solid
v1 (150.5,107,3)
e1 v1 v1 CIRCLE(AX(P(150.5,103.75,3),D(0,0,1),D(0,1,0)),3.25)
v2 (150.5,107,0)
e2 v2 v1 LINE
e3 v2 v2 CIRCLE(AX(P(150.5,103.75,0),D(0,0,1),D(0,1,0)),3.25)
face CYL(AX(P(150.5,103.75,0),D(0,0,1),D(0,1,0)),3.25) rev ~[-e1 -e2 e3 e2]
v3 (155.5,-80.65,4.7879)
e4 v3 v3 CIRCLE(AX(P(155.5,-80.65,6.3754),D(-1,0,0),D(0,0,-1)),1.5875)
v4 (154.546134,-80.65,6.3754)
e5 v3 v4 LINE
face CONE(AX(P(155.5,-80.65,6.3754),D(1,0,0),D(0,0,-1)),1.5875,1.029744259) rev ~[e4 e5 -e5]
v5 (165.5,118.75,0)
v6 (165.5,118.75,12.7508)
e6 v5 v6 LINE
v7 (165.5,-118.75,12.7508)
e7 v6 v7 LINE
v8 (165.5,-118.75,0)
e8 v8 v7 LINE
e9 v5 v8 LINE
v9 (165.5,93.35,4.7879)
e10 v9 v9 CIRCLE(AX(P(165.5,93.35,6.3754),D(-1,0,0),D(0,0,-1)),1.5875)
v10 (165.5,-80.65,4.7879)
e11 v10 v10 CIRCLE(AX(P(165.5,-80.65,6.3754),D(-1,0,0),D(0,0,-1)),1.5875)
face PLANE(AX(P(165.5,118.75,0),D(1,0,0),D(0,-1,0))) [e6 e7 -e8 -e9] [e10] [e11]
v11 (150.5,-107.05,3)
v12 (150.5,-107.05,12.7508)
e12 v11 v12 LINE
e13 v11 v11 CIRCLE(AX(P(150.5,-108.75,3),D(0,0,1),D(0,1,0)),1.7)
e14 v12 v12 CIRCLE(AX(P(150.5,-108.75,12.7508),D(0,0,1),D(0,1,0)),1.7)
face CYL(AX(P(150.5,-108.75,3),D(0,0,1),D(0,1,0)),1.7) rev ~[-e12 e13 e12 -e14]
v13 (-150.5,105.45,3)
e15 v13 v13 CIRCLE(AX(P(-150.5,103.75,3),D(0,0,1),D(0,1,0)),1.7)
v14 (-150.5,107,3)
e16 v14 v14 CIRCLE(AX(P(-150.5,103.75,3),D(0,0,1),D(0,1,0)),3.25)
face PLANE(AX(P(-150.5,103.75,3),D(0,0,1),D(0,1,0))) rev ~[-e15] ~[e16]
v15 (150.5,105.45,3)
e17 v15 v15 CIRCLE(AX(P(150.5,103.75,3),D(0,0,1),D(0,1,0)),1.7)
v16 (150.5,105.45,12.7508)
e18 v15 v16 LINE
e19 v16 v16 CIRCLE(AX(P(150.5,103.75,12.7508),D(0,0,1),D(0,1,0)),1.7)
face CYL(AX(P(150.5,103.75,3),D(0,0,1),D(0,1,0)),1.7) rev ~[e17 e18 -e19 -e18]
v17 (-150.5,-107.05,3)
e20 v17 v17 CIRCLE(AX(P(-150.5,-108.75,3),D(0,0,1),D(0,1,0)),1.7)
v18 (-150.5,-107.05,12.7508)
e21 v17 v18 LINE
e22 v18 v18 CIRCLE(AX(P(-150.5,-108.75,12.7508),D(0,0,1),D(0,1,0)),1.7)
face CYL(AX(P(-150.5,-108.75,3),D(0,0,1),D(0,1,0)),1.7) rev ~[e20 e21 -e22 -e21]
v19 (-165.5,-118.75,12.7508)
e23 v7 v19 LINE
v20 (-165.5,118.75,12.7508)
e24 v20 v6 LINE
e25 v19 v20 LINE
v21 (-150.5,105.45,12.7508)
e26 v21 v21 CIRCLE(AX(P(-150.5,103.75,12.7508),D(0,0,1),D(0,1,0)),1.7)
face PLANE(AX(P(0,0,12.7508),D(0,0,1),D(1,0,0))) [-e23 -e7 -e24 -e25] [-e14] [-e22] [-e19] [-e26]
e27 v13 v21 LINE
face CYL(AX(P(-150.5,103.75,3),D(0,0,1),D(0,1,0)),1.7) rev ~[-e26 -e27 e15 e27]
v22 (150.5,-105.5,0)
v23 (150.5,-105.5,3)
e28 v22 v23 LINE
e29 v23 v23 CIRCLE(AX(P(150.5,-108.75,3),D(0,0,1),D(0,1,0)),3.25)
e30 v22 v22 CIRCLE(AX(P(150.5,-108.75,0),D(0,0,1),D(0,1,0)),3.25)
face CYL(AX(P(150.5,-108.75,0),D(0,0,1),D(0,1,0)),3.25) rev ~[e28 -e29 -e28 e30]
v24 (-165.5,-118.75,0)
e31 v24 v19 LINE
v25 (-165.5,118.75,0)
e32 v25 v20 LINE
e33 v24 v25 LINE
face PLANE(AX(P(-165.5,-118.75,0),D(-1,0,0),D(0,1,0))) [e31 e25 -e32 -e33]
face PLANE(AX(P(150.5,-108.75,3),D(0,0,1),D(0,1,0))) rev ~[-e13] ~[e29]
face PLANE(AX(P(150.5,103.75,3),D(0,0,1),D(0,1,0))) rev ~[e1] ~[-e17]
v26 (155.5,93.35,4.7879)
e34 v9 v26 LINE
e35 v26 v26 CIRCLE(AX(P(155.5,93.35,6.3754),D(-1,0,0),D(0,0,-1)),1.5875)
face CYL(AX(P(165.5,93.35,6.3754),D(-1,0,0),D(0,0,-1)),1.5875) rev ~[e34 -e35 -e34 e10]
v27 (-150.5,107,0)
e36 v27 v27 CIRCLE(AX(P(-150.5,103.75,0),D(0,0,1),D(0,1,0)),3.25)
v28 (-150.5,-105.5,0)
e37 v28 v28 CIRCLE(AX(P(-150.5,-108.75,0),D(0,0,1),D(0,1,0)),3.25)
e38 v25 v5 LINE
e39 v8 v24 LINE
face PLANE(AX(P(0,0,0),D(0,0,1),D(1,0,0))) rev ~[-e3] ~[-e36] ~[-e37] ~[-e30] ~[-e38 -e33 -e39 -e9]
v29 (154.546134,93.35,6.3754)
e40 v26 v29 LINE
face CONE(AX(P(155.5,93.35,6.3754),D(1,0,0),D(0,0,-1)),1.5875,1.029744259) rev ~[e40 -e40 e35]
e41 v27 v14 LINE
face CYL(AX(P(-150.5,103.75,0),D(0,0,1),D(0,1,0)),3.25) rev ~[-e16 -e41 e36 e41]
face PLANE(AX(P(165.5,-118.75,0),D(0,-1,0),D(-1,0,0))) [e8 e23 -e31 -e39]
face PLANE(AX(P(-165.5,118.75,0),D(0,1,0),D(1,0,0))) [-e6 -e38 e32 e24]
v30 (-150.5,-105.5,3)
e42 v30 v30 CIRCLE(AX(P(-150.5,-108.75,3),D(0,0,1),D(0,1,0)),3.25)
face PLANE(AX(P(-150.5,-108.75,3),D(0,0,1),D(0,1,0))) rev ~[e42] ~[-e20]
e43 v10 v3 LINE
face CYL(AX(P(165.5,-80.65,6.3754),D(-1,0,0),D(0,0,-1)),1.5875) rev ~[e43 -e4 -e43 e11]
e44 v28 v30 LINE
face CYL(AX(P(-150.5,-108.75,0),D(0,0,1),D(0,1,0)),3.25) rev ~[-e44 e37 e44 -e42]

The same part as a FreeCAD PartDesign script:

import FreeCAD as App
import Part
import Sketcher
from FreeCAD import Vector

doc = App.newDocument("Part")
body = doc.addObject("PartDesign::Body", "Body")

sketch1 = body.newObject("Sketcher::SketchObject", "Sketch")
sketch1.AttachmentSupport = (doc.getObject("XY_Plane"), [""])
sketch1.MapMode = "FlatFace"
sketch1.addGeometry([
    Part.LineSegment(Vector(166, 119, 0), Vector(-166, 119, 0)),
    Part.LineSegment(Vector(-166, 119, 0), Vector(-166, -119, 0)),
    Part.LineSegment(Vector(-166, -119, 0), Vector(166, -119, 0)),
    Part.LineSegment(Vector(166, -119, 0), Vector(166, 119, 0)),
], False)
sketch1.addConstraint([
    Sketcher.Constraint("Coincident", 0, 2, 1, 1),
    Sketcher.Constraint("Coincident", 1, 2, 2, 1),
    Sketcher.Constraint("Coincident", 2, 2, 3, 1),
    Sketcher.Constraint("Coincident", 3, 2, 0, 1),
    Sketcher.Constraint("Horizontal", 0),
    Sketcher.Constraint("Vertical", 1),
    Sketcher.Constraint("Horizontal", 2),
    Sketcher.Constraint("Vertical", 3),
    Sketcher.Constraint("Symmetric", 0, 2, 2, 2, -1, 1),
    Sketcher.Constraint("DistanceX", 0, 2, 0, 1, 331.0),
    Sketcher.Constraint("DistanceY", 1, 2, 1, 1, 237.5),
])
pad1 = body.newObject("PartDesign::Pad", "Pad")
pad1.Profile = sketch1
pad1.Length = 12.7508

sketch2 = body.newObject("Sketcher::SketchObject", "Sketch001")
sketch2.AttachmentSupport = (doc.getObject("XY_Plane"), [""])
sketch2.MapMode = "FlatFace"
sketch2.addGeometry([
    Part.Circle(Vector(150.5, 103.8, 0), Vector(0, 0, 1), 1.6),
    Part.Circle(Vector(-150.5, 103.8, 0), Vector(0, 0, 1), 1.6),
    Part.Circle(Vector(150.5, -108.8, 0), Vector(0, 0, 1), 1.6),
    Part.Circle(Vector(-150.5, -108.8, 0), Vector(0, 0, 1), 1.6),
], False)
sketch2.addConstraint([
    Sketcher.Constraint("Equal", 0, 1),
    Sketcher.Constraint("Equal", 1, 2),
    Sketcher.Constraint("Equal", 2, 3),
    Sketcher.Constraint("Symmetric", 0, 3, 1, 3, -2),
    Sketcher.Constraint("Symmetric", 2, 3, 3, 3, -2),
    Sketcher.Constraint("Vertical", 0, 3, 2, 3),
    Sketcher.Constraint("Diameter", 0, 3.1),
    Sketcher.Constraint("DistanceX", 1, 3, 0, 3, 301.0),
    Sketcher.Constraint("DistanceY", 2, 3, 0, 3, 212.5),
    Sketcher.Constraint("DistanceY", -1, 1, 0, 3, 103.75),
])
pocket1 = body.newObject("PartDesign::Pocket", "Pocket")
pocket1.Profile = sketch2
pocket1.Type = "ThroughAll"
pocket1.Reversed = True

sketch3 = body.newObject("Sketcher::SketchObject", "Sketch002")
sketch3.AttachmentSupport = (doc.getObject("XY_Plane"), [""])
sketch3.MapMode = "FlatFace"
sketch3.addGeometry([
    Part.Circle(Vector(150.5, 103.8, 0), Vector(0, 0, 1), 1.7),
    Part.Circle(Vector(150.5, -108.8, 0), Vector(0, 0, 1), 1.7),
    Part.Circle(Vector(-150.5, -108.8, 0), Vector(0, 0, 1), 1.7),
    Part.Circle(Vector(-150.5, 103.8, 0), Vector(0, 0, 1), 1.7),
], False)
sketch3.addConstraint([
    Sketcher.Constraint("Equal", 0, 1),
    Sketcher.Constraint("Equal", 1, 2),
    Sketcher.Constraint("Equal", 2, 3),
    Sketcher.Constraint("Symmetric", 1, 3, 2, 3, -2),
    Sketcher.Constraint("Symmetric", 0, 3, 3, 3, -2),
    Sketcher.Constraint("Vertical", 0, 3, 1, 3),
    Sketcher.Constraint("Diameter", 0, 3.4),
    Sketcher.Constraint("DistanceX", 2, 3, 1, 3, 301.0),
    Sketcher.Constraint("DistanceY", 1, 3, 0, 3, 212.5),
    Sketcher.Constraint("DistanceY", -1, 1, 0, 3, 103.75),
])
doc.recompute()
hole = body.newObject("PartDesign::Hole", "Hole")
hole.Profile = sketch3
hole.ThreadType = "None"
hole.Diameter = 3.4
hole.DepthType = "ThroughAll"
hole.HoleCutType = "Counterbore"
hole.HoleCutDiameter = 6.5
hole.HoleCutDepth = 3
hole.Reversed = True

sketch4 = body.newObject("Sketcher::SketchObject", "Sketch003")
sketch4.AttachmentSupport = (doc.getObject("YZ_Plane"), [""])
sketch4.MapMode = "FlatFace"
sketch4.AttachmentOffset = App.Placement(Vector(0, 0, 165.5), App.Rotation())
sketch4.addGeometry([
    Part.Circle(Vector(93.3, 6.4, 0), Vector(0, 0, 1), 1.6),
    Part.Circle(Vector(-80.7, 6.4, 0), Vector(0, 0, 1), 1.6),
], False)
sketch4.addConstraint([
    Sketcher.Constraint("Equal", 0, 1),
    Sketcher.Constraint("Horizontal", 0, 3, 1, 3),
    Sketcher.Constraint("Diameter", 0, 3.175),
    Sketcher.Constraint("DistanceX", 1, 3, 0, 3, 174.0),
    Sketcher.Constraint("DistanceX", -1, 1, 0, 3, 93.35),
    Sketcher.Constraint("DistanceY", -1, 1, 0, 3, 6.3754),
])
doc.recompute()
hole2 = body.newObject("PartDesign::Hole", "Hole001")
hole2.Profile = sketch4
hole2.ThreadType = "None"
hole2.Diameter = 3.175
hole2.DepthType = "Dimension"
hole2.Depth = 10
hole2.DrillPoint = "Angled"
hole2.DrillPointAngle = 118

doc.recompute()
